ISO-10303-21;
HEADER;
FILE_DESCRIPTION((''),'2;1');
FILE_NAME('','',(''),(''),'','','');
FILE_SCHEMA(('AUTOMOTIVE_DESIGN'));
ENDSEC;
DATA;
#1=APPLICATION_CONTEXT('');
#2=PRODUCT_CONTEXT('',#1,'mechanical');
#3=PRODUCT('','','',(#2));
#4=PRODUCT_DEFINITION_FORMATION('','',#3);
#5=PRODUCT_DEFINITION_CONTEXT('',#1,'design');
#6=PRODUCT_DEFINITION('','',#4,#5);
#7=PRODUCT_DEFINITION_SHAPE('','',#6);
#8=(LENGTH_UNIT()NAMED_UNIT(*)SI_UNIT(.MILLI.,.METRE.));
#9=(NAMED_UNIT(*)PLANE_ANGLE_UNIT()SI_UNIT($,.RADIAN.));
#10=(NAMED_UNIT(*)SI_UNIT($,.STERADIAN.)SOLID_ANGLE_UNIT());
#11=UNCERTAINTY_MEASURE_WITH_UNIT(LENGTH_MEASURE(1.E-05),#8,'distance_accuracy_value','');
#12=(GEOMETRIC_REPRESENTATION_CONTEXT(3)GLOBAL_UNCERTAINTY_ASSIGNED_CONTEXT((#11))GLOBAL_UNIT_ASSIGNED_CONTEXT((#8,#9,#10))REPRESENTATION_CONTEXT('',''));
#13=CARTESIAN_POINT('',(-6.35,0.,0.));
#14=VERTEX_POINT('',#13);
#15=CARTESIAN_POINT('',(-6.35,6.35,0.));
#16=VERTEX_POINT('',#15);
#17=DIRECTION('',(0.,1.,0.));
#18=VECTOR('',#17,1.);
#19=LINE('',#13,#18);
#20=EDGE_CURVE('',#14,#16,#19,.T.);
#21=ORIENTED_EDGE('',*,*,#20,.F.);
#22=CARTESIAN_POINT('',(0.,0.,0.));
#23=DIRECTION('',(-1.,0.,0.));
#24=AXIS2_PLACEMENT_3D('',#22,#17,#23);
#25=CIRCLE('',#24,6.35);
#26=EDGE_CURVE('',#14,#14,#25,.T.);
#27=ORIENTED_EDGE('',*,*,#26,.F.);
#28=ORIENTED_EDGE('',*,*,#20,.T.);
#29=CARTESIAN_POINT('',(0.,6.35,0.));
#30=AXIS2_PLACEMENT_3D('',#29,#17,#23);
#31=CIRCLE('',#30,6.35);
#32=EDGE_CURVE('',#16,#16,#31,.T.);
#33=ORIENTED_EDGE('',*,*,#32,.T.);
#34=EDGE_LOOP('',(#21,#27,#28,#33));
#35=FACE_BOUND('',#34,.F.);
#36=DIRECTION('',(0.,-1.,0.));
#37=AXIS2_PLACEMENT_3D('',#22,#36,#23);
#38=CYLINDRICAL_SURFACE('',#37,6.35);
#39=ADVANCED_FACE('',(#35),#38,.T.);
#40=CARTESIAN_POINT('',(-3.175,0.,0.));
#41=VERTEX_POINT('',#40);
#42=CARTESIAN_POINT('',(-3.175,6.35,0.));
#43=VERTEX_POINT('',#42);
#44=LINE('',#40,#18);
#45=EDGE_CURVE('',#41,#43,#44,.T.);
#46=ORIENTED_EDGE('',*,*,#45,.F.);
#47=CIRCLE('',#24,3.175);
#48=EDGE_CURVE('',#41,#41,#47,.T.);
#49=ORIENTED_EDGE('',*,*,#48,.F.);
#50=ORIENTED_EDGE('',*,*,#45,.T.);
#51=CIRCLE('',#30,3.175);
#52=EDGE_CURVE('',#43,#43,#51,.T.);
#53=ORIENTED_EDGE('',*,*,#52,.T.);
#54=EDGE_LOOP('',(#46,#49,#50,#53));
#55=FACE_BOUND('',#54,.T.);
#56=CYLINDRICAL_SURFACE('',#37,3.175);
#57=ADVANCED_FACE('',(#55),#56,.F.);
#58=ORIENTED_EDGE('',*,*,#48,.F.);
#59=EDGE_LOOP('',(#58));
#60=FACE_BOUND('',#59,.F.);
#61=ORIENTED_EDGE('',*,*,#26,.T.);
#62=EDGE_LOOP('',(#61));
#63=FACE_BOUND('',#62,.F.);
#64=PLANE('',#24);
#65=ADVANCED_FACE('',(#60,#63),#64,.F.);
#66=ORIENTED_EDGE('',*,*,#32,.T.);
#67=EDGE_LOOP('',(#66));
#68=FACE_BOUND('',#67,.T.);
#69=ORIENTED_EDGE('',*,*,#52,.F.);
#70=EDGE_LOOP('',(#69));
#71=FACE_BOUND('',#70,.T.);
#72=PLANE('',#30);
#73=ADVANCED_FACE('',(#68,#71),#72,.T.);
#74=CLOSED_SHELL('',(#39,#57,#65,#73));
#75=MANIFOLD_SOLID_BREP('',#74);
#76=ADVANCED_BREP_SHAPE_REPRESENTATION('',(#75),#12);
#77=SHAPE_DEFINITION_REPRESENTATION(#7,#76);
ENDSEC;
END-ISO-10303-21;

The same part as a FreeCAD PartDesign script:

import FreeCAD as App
import Part
import Sketcher
Q = App.Units.Quantity

doc = App.newDocument("Part")
body = doc.addObject("PartDesign::Body", "Body")

# Sketch on XZ plane
sketch1 = body.newObject("Sketcher::SketchObject", "Sketch")
sketch1.AttachmentSupport = (doc.getObject("XZ_Plane"), [""])
sketch1.MapMode = "FlatFace"
sketch1.addGeometry([
    Part.Circle(App.Vector(0, 0, 0), App.Vector(0, 0, 1), 6.35),
    Part.Circle(App.Vector(0, 0, 0), App.Vector(0, 0, 1), 3.175),
], False)
sketch1.addConstraint([
    Sketcher.Constraint("Coincident", 0, 3, -1, 1),
    Sketcher.Constraint("Coincident", 1, 3, -1, 1),
    Sketcher.Constraint("Diameter", 0, Q("0.5 in")),
    Sketcher.Constraint("Diameter", 1, Q("0.25 in")),
])
pad1 = body.newObject("PartDesign::Pad", "Pad")
pad1.Profile = sketch1
pad1.Length = Q("0.25 in")
pad1.Reversed = True

doc.recompute()
